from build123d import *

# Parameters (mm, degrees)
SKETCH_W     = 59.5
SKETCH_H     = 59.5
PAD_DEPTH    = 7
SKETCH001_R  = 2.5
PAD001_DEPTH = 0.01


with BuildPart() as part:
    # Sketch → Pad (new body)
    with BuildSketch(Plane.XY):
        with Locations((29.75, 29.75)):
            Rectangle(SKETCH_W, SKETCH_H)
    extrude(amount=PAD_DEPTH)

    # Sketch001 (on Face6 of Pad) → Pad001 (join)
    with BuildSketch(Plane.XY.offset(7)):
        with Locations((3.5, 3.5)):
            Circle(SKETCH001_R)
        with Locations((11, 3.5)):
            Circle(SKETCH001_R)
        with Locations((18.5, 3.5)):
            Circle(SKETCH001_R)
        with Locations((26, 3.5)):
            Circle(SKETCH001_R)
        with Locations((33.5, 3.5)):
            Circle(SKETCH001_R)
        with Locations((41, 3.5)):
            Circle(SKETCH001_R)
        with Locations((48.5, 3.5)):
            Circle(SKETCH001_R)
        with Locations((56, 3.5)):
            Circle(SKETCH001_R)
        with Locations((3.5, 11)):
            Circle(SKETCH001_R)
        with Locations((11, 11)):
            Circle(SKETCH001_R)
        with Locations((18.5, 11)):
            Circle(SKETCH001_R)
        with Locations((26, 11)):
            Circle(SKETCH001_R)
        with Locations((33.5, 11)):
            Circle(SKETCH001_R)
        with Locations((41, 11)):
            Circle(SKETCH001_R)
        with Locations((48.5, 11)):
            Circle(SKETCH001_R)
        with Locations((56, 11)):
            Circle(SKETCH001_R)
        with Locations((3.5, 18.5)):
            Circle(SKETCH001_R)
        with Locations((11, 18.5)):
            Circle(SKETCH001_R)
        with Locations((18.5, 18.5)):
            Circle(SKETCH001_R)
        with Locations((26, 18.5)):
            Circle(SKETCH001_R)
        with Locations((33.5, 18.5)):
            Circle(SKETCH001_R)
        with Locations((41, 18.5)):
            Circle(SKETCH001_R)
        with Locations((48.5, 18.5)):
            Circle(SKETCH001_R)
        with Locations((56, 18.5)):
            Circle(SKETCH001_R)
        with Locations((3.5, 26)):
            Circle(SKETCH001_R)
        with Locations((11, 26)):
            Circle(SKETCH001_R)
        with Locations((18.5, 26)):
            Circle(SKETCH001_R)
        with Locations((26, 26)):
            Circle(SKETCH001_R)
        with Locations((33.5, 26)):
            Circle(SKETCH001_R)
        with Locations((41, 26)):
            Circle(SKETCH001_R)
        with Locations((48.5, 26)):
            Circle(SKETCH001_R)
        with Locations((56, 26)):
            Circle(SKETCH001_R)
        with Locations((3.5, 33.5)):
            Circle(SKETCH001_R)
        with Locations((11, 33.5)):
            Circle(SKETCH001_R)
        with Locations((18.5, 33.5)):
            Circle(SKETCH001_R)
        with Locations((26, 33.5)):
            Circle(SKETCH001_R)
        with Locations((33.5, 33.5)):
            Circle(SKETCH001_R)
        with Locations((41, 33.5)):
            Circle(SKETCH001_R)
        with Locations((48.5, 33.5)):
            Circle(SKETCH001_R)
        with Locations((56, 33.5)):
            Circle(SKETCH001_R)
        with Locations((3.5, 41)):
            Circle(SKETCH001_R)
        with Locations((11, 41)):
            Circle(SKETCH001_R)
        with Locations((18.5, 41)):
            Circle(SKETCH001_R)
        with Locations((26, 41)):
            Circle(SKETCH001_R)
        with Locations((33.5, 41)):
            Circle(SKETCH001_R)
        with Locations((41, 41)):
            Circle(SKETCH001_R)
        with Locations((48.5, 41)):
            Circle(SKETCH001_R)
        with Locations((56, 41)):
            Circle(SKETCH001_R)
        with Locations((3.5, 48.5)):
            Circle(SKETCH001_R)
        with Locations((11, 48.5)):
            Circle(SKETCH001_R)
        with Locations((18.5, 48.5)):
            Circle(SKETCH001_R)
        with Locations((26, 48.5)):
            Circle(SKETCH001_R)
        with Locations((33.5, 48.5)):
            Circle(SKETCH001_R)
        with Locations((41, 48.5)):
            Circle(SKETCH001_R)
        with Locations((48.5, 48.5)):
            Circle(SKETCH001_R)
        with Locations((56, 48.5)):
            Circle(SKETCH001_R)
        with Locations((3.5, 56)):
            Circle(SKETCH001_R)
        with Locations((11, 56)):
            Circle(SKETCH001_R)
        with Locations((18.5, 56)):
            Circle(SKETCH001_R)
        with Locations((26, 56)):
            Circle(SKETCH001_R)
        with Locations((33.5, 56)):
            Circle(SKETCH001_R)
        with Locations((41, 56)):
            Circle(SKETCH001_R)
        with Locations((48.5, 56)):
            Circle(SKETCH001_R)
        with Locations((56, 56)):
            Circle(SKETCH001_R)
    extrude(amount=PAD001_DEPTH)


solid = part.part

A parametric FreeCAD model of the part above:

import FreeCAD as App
import Part
import Sketcher
Q = App.Units.Quantity

doc = App.newDocument("Part")
body = doc.addObject("PartDesign::Body", "Body")

sketch1 = body.newObject("Sketcher::SketchObject", "Sketch")
sketch1.AttachmentSupport = (doc.getObject("XY_Plane"), [""])
sketch1.MapMode = "FlatFace"
sketch1.addGeometry(Part.LineSegment(App.Vector(0, 59.5, 0), App.Vector(0, 0, 0)), False)
sketch1.addGeometry(Part.LineSegment(App.Vector(0, 0, 0), App.Vector(59.5, 0, 0)), False)
sketch1.addGeometry(Part.LineSegment(App.Vector(59.5, 0, 0), App.Vector(59.5, 59.5, 0)), False)
sketch1.addGeometry(Part.LineSegment(App.Vector(59.5, 59.5, 0), App.Vector(0, 59.5, 0)), False)
sketch1.addConstraint(Sketcher.Constraint("Coincident", 0, 2, 1, 1))
sketch1.addConstraint(Sketcher.Constraint("Coincident", 1, 2, 2, 1))
sketch1.addConstraint(Sketcher.Constraint("Coincident", 2, 2, 3, 1))
sketch1.addConstraint(Sketcher.Constraint("Coincident", 3, 2, 0, 1))
sketch1.addConstraint(Sketcher.Constraint("Vertical", 0))
sketch1.addConstraint(Sketcher.Constraint("Horizontal", 1))
sketch1.addConstraint(Sketcher.Constraint("Vertical", 2))
sketch1.addConstraint(Sketcher.Constraint("Horizontal", 3))
sketch1.addConstraint(Sketcher.Constraint("Coincident", 0, 2, -1, 1))
sketch1.addConstraint(Sketcher.Constraint("Equal", 3, 0))
sketch1.addConstraint(Sketcher.Constraint("DistanceX", 1, 1, 1, 2, Q("59.5 mm")))
pad1 = body.newObject("PartDesign::Pad", "Pad")
pad1.Profile = sketch1
pad1.Length = 7

sketch2 = body.newObject("Sketcher::SketchObject", "Sketch001")
sketch2.AttachmentSupport = (doc.getObject("XY_Plane"), [""])
sketch2.MapMode = "FlatFace"
sketch2.AttachmentOffset = App.Placement(App.Vector(0, 0, 7), App.Rotation())
sketch2.addGeometry(Part.Circle(App.Vector(3.5, 3.5, 0), App.Vector(0, 0, 1), 2.5), False)
sketch2.addGeometry(Part.Circle(App.Vector(11, 3.5, 0), App.Vector(0, 0, 1), 2.5), False)
sketch2.addGeometry(Part.Circle(App.Vector(18.5, 3.5, 0), App.Vector(0, 0, 1), 2.5), False)
sketch2.addGeometry(Part.Circle(App.Vector(26, 3.5, 0), App.Vector(0, 0, 1), 2.5), False)
sketch2.addGeometry(Part.Circle(App.Vector(33.5, 3.5, 0), App.Vector(0, 0, 1), 2.5), False)
sketch2.addGeometry(Part.Circle(App.Vector(41, 3.5, 0), App.Vector(0, 0, 1), 2.5), False)
sketch2.addGeometry(Part.Circle(App.Vector(48.5, 3.5, 0), App.Vector(0, 0, 1), 2.5), False)
sketch2.addGeometry(Part.Circle(App.Vector(56, 3.5, 0), App.Vector(0, 0, 1), 2.5), False)
sketch2.addGeometry(Part.Circle(App.Vector(3.5, 11, 0), App.Vector(0, 0, 1), 2.5), False)
sketch2.addGeometry(Part.Circle(App.Vector(11, 11, 0), App.Vector(0, 0, 1), 2.5), False)
sketch2.addGeometry(Part.Circle(App.Vector(18.5, 11, 0), App.Vector(0, 0, 1), 2.5), False)
sketch2.addGeometry(Part.Circle(App.Vector(26, 11, 0), App.Vector(0, 0, 1), 2.5), False)
sketch2.addGeometry(Part.Circle(App.Vector(33.5, 11, 0), App.Vector(0, 0, 1), 2.5), False)
sketch2.addGeometry(Part.Circle(App.Vector(41, 11, 0), App.Vector(0, 0, 1), 2.5), False)
sketch2.addGeometry(Part.Circle(App.Vector(48.5, 11, 0), App.Vector(0, 0, 1), 2.5), False)
sketch2.addGeometry(Part.Circle(App.Vector(56, 11, 0), App.Vector(0, 0, 1), 2.5), False)
sketch2.addGeometry(Part.Circle(App.Vector(3.5, 18.5, 0), App.Vector(0, 0, 1), 2.5), False)
sketch2.addGeometry(Part.Circle(App.Vector(11, 18.5, 0), App.Vector(0, 0, 1), 2.5), False)
sketch2.addGeometry(Part.Circle(App.Vector(18.5, 18.5, 0), App.Vector(0, 0, 1), 2.5), False)
sketch2.addGeometry(Part.Circle(App.Vector(26, 18.5, 0), App.Vector(0, 0, 1), 2.5), False)
sketch2.addGeometry(Part.Circle(App.Vector(33.5, 18.5, 0), App.Vector(0, 0, 1), 2.5), False)
sketch2.addGeometry(Part.Circle(App.Vector(41, 18.5, 0), App.Vector(0, 0, 1), 2.5), False)
sketch2.addGeometry(Part.Circle(App.Vector(48.5, 18.5, 0), App.Vector(0, 0, 1), 2.5), False)
sketch2.addGeometry(Part.Circle(App.Vector(56, 18.5, 0), App.Vector(0, 0, 1), 2.5), False)
sketch2.addGeometry(Part.Circle(App.Vector(3.5, 26, 0), App.Vector(0, 0, 1), 2.5), False)
sketch2.addGeometry(Part.Circle(App.Vector(11, 26, 0), App.Vector(0, 0, 1), 2.5), False)
sketch2.addGeometry(Part.Circle(App.Vector(18.5, 26, 0), App.Vector(0, 0, 1), 2.5), False)
sketch2.addGeometry(Part.Circle(App.Vector(26, 26, 0), App.Vector(0, 0, 1), 2.5), False)
sketch2.addGeometry(Part.Circle(App.Vector(33.5, 26, 0), App.Vector(0, 0, 1), 2.5), False)
sketch2.addGeometry(Part.Circle(App.Vector(41, 26, 0), App.Vector(0, 0, 1), 2.5), False)
sketch2.addGeometry(Part.Circle(App.Vector(48.5, 26, 0), App.Vector(0, 0, 1), 2.5), False)
sketch2.addGeometry(Part.Circle(App.Vector(56, 26, 0), App.Vector(0, 0, 1), 2.5), False)
sketch2.addGeometry(Part.Circle(App.Vector(3.5, 33.5, 0), App.Vector(0, 0, 1), 2.5), False)
sketch2.addGeometry(Part.Circle(App.Vector(11, 33.5, 0), App.Vector(0, 0, 1), 2.5), False)
sketch2.addGeometry(Part.Circle(App.Vector(18.5, 33.5, 0), App.Vector(0, 0, 1), 2.5), False)
sketch2.addGeometry(Part.Circle(App.Vector(26, 33.5, 0), App.Vector(0, 0, 1), 2.5), False)
sketch2.addGeometry(Part.Circle(App.Vector(33.5, 33.5, 0), App.Vector(0, 0, 1), 2.5), False)
sketch2.addGeometry(Part.Circle(App.Vector(41, 33.5, 0), App.Vector(0, 0, 1), 2.5), False)
sketch2.addGeometry(Part.Circle(App.Vector(48.5, 33.5, 0), App.Vector(0, 0, 1), 2.5), False)
sketch2.addGeometry(Part.Circle(App.Vector(56, 33.5, 0), App.Vector(0, 0, 1), 2.5), False)
sketch2.addGeometry(Part.Circle(App.Vector(3.5, 41, 0), App.Vector(0, 0, 1), 2.5), False)
sketch2.addGeometry(Part.Circle(App.Vector(11, 41, 0), App.Vector(0, 0, 1), 2.5), False)
sketch2.addGeometry(Part.Circle(App.Vector(18.5, 41, 0), App.Vector(0, 0, 1), 2.5), False)
sketch2.addGeometry(Part.Circle(App.Vector(26, 41, 0), App.Vector(0, 0, 1), 2.5), False)
sketch2.addGeometry(Part.Circle(App.Vector(33.5, 41, 0), App.Vector(0, 0, 1), 2.5), False)
sketch2.addGeometry(Part.Circle(App.Vector(41, 41, 0), App.Vector(0, 0, 1), 2.5), False)
sketch2.addGeometry(Part.Circle(App.Vector(48.5, 41, 0), App.Vector(0, 0, 1), 2.5), False)
sketch2.addGeometry(Part.Circle(App.Vector(56, 41, 0), App.Vector(0, 0, 1), 2.5), False)
sketch2.addGeometry(Part.Circle(App.Vector(3.5, 48.5, 0), App.Vector(0, 0, 1), 2.5), False)
sketch2.addGeometry(Part.Circle(App.Vector(11, 48.5, 0), App.Vector(0, 0, 1), 2.5), False)
sketch2.addGeometry(Part.Circle(App.Vector(18.5, 48.5, 0), App.Vector(0, 0, 1), 2.5), False)
sketch2.addGeometry(Part.Circle(App.Vector(26, 48.5, 0), App.Vector(0, 0, 1), 2.5), False)
sketch2.addGeometry(Part.Circle(App.Vector(33.5, 48.5, 0), App.Vector(0, 0, 1), 2.5), False)
sketch2.addGeometry(Part.Circle(App.Vector(41, 48.5, 0), App.Vector(0, 0, 1), 2.5), False)
sketch2.addGeometry(Part.Circle(App.Vector(48.5, 48.5, 0), App.Vector(0, 0, 1), 2.5), False)
sketch2.addGeometry(Part.Circle(App.Vector(56, 48.5, 0), App.Vector(0, 0, 1), 2.5), False)
sketch2.addGeometry(Part.Circle(App.Vector(3.5, 56, 0), App.Vector(0, 0, 1), 2.5), False)
sketch2.addGeometry(Part.Circle(App.Vector(11, 56, 0), App.Vector(0, 0, 1), 2.5), False)
sketch2.addGeometry(Part.Circle(App.Vector(18.5, 56, 0), App.Vector(0, 0, 1), 2.5), False)
sketch2.addGeometry(Part.Circle(App.Vector(26, 56, 0), App.Vector(0, 0, 1), 2.5), False)
sketch2.addGeometry(Part.Circle(App.Vector(33.5, 56, 0), App.Vector(0, 0, 1), 2.5), False)
sketch2.addGeometry(Part.Circle(App.Vector(41, 56, 0), App.Vector(0, 0, 1), 2.5), False)
sketch2.addGeometry(Part.Circle(App.Vector(48.5, 56, 0), App.Vector(0, 0, 1), 2.5), False)
sketch2.addGeometry(Part.Circle(App.Vector(56, 56, 0), App.Vector(0, 0, 1), 2.5), False)
sketch2.addConstraint(Sketcher.Constraint("Equal", 0, 1))
sketch2.addConstraint(Sketcher.Constraint("Equal", 1, 2))
sketch2.addConstraint(Sketcher.Constraint("Equal", 2, 3))
sketch2.addConstraint(Sketcher.Constraint("Equal", 3, 4))
sketch2.addConstraint(Sketcher.Constraint("Equal", 4, 5))
sketch2.addConstraint(Sketcher.Constraint("Equal", 5, 6))
sketch2.addConstraint(Sketcher.Constraint("Equal", 6, 7))
sketch2.addConstraint(Sketcher.Constraint("Equal", 7, 8))
sketch2.addConstraint(Sketcher.Constraint("Equal", 8, 9))
sketch2.addConstraint(Sketcher.Constraint("Equal", 9, 10))
sketch2.addConstraint(Sketcher.Constraint("Equal", 10, 11))
sketch2.addConstraint(Sketcher.Constraint("Equal", 11, 12))
sketch2.addConstraint(Sketcher.Constraint("Equal", 12, 13))
sketch2.addConstraint(Sketcher.Constraint("Equal", 13, 14))
sketch2.addConstraint(Sketcher.Constraint("Equal", 14, 15))
sketch2.addConstraint(Sketcher.Constraint("Equal", 15, 16))
sketch2.addConstraint(Sketcher.Constraint("Equal", 16, 17))
sketch2.addConstraint(Sketcher.Constraint("Equal", 17, 18))
sketch2.addConstraint(Sketcher.Constraint("Equal", 18, 19))
sketch2.addConstraint(Sketcher.Constraint("Equal", 19, 20))
sketch2.addConstraint(Sketcher.Constraint("Equal", 20, 21))
sketch2.addConstraint(Sketcher.Constraint("Equal", 21, 22))
sketch2.addConstraint(Sketcher.Constraint("Equal", 22, 23))
sketch2.addConstraint(Sketcher.Constraint("Equal", 23, 24))
sketch2.addConstraint(Sketcher.Constraint("Equal", 24, 25))
sketch2.addConstraint(Sketcher.Constraint("Equal", 25, 26))
sketch2.addConstraint(Sketcher.Constraint("Equal", 26, 27))
sketch2.addConstraint(Sketcher.Constraint("Equal", 27, 28))
sketch2.addConstraint(Sketcher.Constraint("Equal", 28, 29))
sketch2.addConstraint(Sketcher.Constraint("Equal", 29, 30))
sketch2.addConstraint(Sketcher.Constraint("Equal", 30, 31))
sketch2.addConstraint(Sketcher.Constraint("Equal", 31, 32))
sketch2.addConstraint(Sketcher.Constraint("Equal", 32, 33))
sketch2.addConstraint(Sketcher.Constraint("Equal", 33, 34))
sketch2.addConstraint(Sketcher.Constraint("Equal", 34, 35))
sketch2.addConstraint(Sketcher.Constraint("Equal", 35, 36))
sketch2.addConstraint(Sketcher.Constraint("Equal", 36, 37))
sketch2.addConstraint(Sketcher.Constraint("Equal", 37, 38))
sketch2.addConstraint(Sketcher.Constraint("Equal", 38, 39))
sketch2.addConstraint(Sketcher.Constraint("Equal", 39, 40))
sketch2.addConstraint(Sketcher.Constraint("Equal", 40, 41))
sketch2.addConstraint(Sketcher.Constraint("Equal", 41, 42))
sketch2.addConstraint(Sketcher.Constraint("Equal", 42, 43))
sketch2.addConstraint(Sketcher.Constraint("Equal", 43, 44))
sketch2.addConstraint(Sketcher.Constraint("Equal", 44, 45))
sketch2.addConstraint(Sketcher.Constraint("Equal", 45, 46))
sketch2.addConstraint(Sketcher.Constraint("Equal", 46, 47))
sketch2.addConstraint(Sketcher.Constraint("Equal", 47, 48))
sketch2.addConstraint(Sketcher.Constraint("Equal", 48, 49))
sketch2.addConstraint(Sketcher.Constraint("Equal", 49, 50))
sketch2.addConstraint(Sketcher.Constraint("Equal", 50, 51))
sketch2.addConstraint(Sketcher.Constraint("Equal", 51, 52))
sketch2.addConstraint(Sketcher.Constraint("Equal", 52, 53))
sketch2.addConstraint(Sketcher.Constraint("Equal", 53, 54))
sketch2.addConstraint(Sketcher.Constraint("Equal", 54, 55))
sketch2.addConstraint(Sketcher.Constraint("Equal", 55, 56))
sketch2.addConstraint(Sketcher.Constraint("Equal", 56, 57))
sketch2.addConstraint(Sketcher.Constraint("Equal", 57, 58))
sketch2.addConstraint(Sketcher.Constraint("Equal", 58, 59))
sketch2.addConstraint(Sketcher.Constraint("Equal", 59, 60))
sketch2.addConstraint(Sketcher.Constraint("Equal", 60, 61))
sketch2.addConstraint(Sketcher.Constraint("Equal", 61, 62))
sketch2.addConstraint(Sketcher.Constraint("Equal", 62, 63))
sketch2.addConstraint(Sketcher.Constraint("Horizontal", 0, 3, 1, 3))
sketch2.addConstraint(Sketcher.Constraint("Horizontal", 1, 3, 2, 3))
sketch2.addConstraint(Sketcher.Constraint("Horizontal", 2, 3, 3, 3))
sketch2.addConstraint(Sketcher.Constraint("Horizontal", 3, 3, 4, 3))
sketch2.addConstraint(Sketcher.Constraint("Horizontal", 4, 3, 5, 3))
sketch2.addConstraint(Sketcher.Constraint("Horizontal", 5, 3, 6, 3))
sketch2.addConstraint(Sketcher.Constraint("Horizontal", 6, 3, 7, 3))
sketch2.addConstraint(Sketcher.Constraint("Horizontal", 8, 3, 9, 3))
sketch2.addConstraint(Sketcher.Constraint("Horizontal", 9, 3, 10, 3))
sketch2.addConstraint(Sketcher.Constraint("Horizontal", 10, 3, 11, 3))
sketch2.addConstraint(Sketcher.Constraint("Horizontal", 11, 3, 12, 3))
sketch2.addConstraint(Sketcher.Constraint("Horizontal", 12, 3, 13, 3))
sketch2.addConstraint(Sketcher.Constraint("Horizontal", 13, 3, 14, 3))
sketch2.addConstraint(Sketcher.Constraint("Horizontal", 14, 3, 15, 3))
sketch2.addConstraint(Sketcher.Constraint("Horizontal", 16, 3, 17, 3))
sketch2.addConstraint(Sketcher.Constraint("Horizontal", 17, 3, 18, 3))
sketch2.addConstraint(Sketcher.Constraint("Horizontal", 18, 3, 19, 3))
sketch2.addConstraint(Sketcher.Constraint("Horizontal", 19, 3, 20, 3))
sketch2.addConstraint(Sketcher.Constraint("Horizontal", 20, 3, 21, 3))
sketch2.addConstraint(Sketcher.Constraint("Horizontal", 21, 3, 22, 3))
sketch2.addConstraint(Sketcher.Constraint("Horizontal", 22, 3, 23, 3))
sketch2.addConstraint(Sketcher.Constraint("Horizontal", 24, 3, 25, 3))
sketch2.addConstraint(Sketcher.Constraint("Horizontal", 25, 3, 26, 3))
sketch2.addConstraint(Sketcher.Constraint("Horizontal", 26, 3, 27, 3))
sketch2.addConstraint(Sketcher.Constraint("Horizontal", 27, 3, 28, 3))
sketch2.addConstraint(Sketcher.Constraint("Horizontal", 28, 3, 29, 3))
sketch2.addConstraint(Sketcher.Constraint("Horizontal", 29, 3, 30, 3))
sketch2.addConstraint(Sketcher.Constraint("Horizontal", 30, 3, 31, 3))
sketch2.addConstraint(Sketcher.Constraint("Horizontal", 32, 3, 33, 3))
sketch2.addConstraint(Sketcher.Constraint("Horizontal", 33, 3, 34, 3))
sketch2.addConstraint(Sketcher.Constraint("Horizontal", 34, 3, 35, 3))
sketch2.addConstraint(Sketcher.Constraint("Horizontal", 35, 3, 36, 3))
sketch2.addConstraint(Sketcher.Constraint("Horizontal", 36, 3, 37, 3))
sketch2.addConstraint(Sketcher.Constraint("Horizontal", 37, 3, 38, 3))
sketch2.addConstraint(Sketcher.Constraint("Horizontal", 38, 3, 39, 3))
sketch2.addConstraint(Sketcher.Constraint("Horizontal", 40, 3, 41, 3))
sketch2.addConstraint(Sketcher.Constraint("Horizontal", 41, 3, 42, 3))
sketch2.addConstraint(Sketcher.Constraint("Horizontal", 42, 3, 43, 3))
sketch2.addConstraint(Sketcher.Constraint("Horizontal", 43, 3, 44, 3))
sketch2.addConstraint(Sketcher.Constraint("Horizontal", 44, 3, 45, 3))
sketch2.addConstraint(Sketcher.Constraint("Horizontal", 45, 3, 46, 3))
sketch2.addConstraint(Sketcher.Constraint("Horizontal", 46, 3, 47, 3))
sketch2.addConstraint(Sketcher.Constraint("Horizontal", 48, 3, 49, 3))
sketch2.addConstraint(Sketcher.Constraint("Horizontal", 49, 3, 50, 3))
sketch2.addConstraint(Sketcher.Constraint("Horizontal", 50, 3, 51, 3))
sketch2.addConstraint(Sketcher.Constraint("Horizontal", 51, 3, 52, 3))
sketch2.addConstraint(Sketcher.Constraint("Horizontal", 52, 3, 53, 3))
sketch2.addConstraint(Sketcher.Constraint("Horizontal", 53, 3, 54, 3))
sketch2.addConstraint(Sketcher.Constraint("Horizontal", 54, 3, 55, 3))
sketch2.addConstraint(Sketcher.Constraint("Horizontal", 56, 3, 57, 3))
sketch2.addConstraint(Sketcher.Constraint("Horizontal", 57, 3, 58, 3))
sketch2.addConstraint(Sketcher.Constraint("Horizontal", 58, 3, 59, 3))
sketch2.addConstraint(Sketcher.Constraint("Horizontal", 59, 3, 60, 3))
sketch2.addConstraint(Sketcher.Constraint("Horizontal", 60, 3, 61, 3))
sketch2.addConstraint(Sketcher.Constraint("Horizontal", 61, 3, 62, 3))
sketch2.addConstraint(Sketcher.Constraint("Horizontal", 62, 3, 63, 3))
sketch2.addConstraint(Sketcher.Constraint("Vertical", 0, 3, 8, 3))
sketch2.addConstraint(Sketcher.Constraint("Vertical", 1, 3, 9, 3))
sketch2.addConstraint(Sketcher.Constraint("Vertical", 2, 3, 10, 3))
sketch2.addConstraint(Sketcher.Constraint("Vertical", 3, 3, 11, 3))
sketch2.addConstraint(Sketcher.Constraint("Vertical", 4, 3, 12, 3))
sketch2.addConstraint(Sketcher.Constraint("Vertical", 5, 3, 13, 3))
sketch2.addConstraint(Sketcher.Constraint("Vertical", 6, 3, 14, 3))
sketch2.addConstraint(Sketcher.Constraint("Vertical", 7, 3, 15, 3))
sketch2.addConstraint(Sketcher.Constraint("Vertical", 8, 3, 16, 3))
sketch2.addConstraint(Sketcher.Constraint("Vertical", 9, 3, 17, 3))
sketch2.addConstraint(Sketcher.Constraint("Vertical", 10, 3, 18, 3))
sketch2.addConstraint(Sketcher.Constraint("Vertical", 11, 3, 19, 3))
sketch2.addConstraint(Sketcher.Constraint("Vertical", 12, 3, 20, 3))
sketch2.addConstraint(Sketcher.Constraint("Vertical", 13, 3, 21, 3))
sketch2.addConstraint(Sketcher.Constraint("Vertical", 14, 3, 22, 3))
sketch2.addConstraint(Sketcher.Constraint("Vertical", 15, 3, 23, 3))
sketch2.addConstraint(Sketcher.Constraint("Vertical", 16, 3, 24, 3))
sketch2.addConstraint(Sketcher.Constraint("Vertical", 17, 3, 25, 3))
sketch2.addConstraint(Sketcher.Constraint("Vertical", 18, 3, 26, 3))
sketch2.addConstraint(Sketcher.Constraint("Vertical", 19, 3, 27, 3))
sketch2.addConstraint(Sketcher.Constraint("Vertical", 20, 3, 28, 3))
sketch2.addConstraint(Sketcher.Constraint("Vertical", 21, 3, 29, 3))
sketch2.addConstraint(Sketcher.Constraint("Vertical", 22, 3, 30, 3))
sketch2.addConstraint(Sketcher.Constraint("Vertical", 23, 3, 31, 3))
sketch2.addConstraint(Sketcher.Constraint("Vertical", 24, 3, 32, 3))
sketch2.addConstraint(Sketcher.Constraint("Vertical", 25, 3, 33, 3))
sketch2.addConstraint(Sketcher.Constraint("Vertical", 26, 3, 34, 3))
sketch2.addConstraint(Sketcher.Constraint("Vertical", 27, 3, 35, 3))
sketch2.addConstraint(Sketcher.Constraint("Vertical", 28, 3, 36, 3))
sketch2.addConstraint(Sketcher.Constraint("Vertical", 29, 3, 37, 3))
sketch2.addConstraint(Sketcher.Constraint("Vertical", 30, 3, 38, 3))
sketch2.addConstraint(Sketcher.Constraint("Vertical", 31, 3, 39, 3))
sketch2.addConstraint(Sketcher.Constraint("Vertical", 32, 3, 40, 3))
sketch2.addConstraint(Sketcher.Constraint("Vertical", 33, 3, 41, 3))
sketch2.addConstraint(Sketcher.Constraint("Vertical", 34, 3, 42, 3))
sketch2.addConstraint(Sketcher.Constraint("Vertical", 35, 3, 43, 3))
sketch2.addConstraint(Sketcher.Constraint("Vertical", 36, 3, 44, 3))
sketch2.addConstraint(Sketcher.Constraint("Vertical", 37, 3, 45, 3))
sketch2.addConstraint(Sketcher.Constraint("Vertical", 38, 3, 46, 3))
sketch2.addConstraint(Sketcher.Constraint("Vertical", 39, 3, 47, 3))
sketch2.addConstraint(Sketcher.Constraint("Vertical", 40, 3, 48, 3))
sketch2.addConstraint(Sketcher.Constraint("Vertical", 41, 3, 49, 3))
sketch2.addConstraint(Sketcher.Constraint("Vertical", 42, 3, 50, 3))
sketch2.addConstraint(Sketcher.Constraint("Vertical", 43, 3, 51, 3))
sketch2.addConstraint(Sketcher.Constraint("Vertical", 44, 3, 52, 3))
sketch2.addConstraint(Sketcher.Constraint("Vertical", 45, 3, 53, 3))
sketch2.addConstraint(Sketcher.Constraint("Vertical", 46, 3, 54, 3))
sketch2.addConstraint(Sketcher.Constraint("Vertical", 47, 3, 55, 3))
sketch2.addConstraint(Sketcher.Constraint("Vertical", 48, 3, 56, 3))
sketch2.addConstraint(Sketcher.Constraint("Vertical", 49, 3, 57, 3))
sketch2.addConstraint(Sketcher.Constraint("Vertical", 50, 3, 58, 3))
sketch2.addConstraint(Sketcher.Constraint("Vertical", 51, 3, 59, 3))
sketch2.addConstraint(Sketcher.Constraint("Vertical", 52, 3, 60, 3))
sketch2.addConstraint(Sketcher.Constraint("Vertical", 53, 3, 61, 3))
sketch2.addConstraint(Sketcher.Constraint("Vertical", 54, 3, 62, 3))
sketch2.addConstraint(Sketcher.Constraint("Vertical", 55, 3, 63, 3))
sketch2.addConstraint(Sketcher.Constraint("Diameter", 0, Q("5 mm")))
sketch2.addConstraint(Sketcher.Constraint("DistanceX", -1, 1, 1, 3, Q("11 mm")))
sketch2.addConstraint(Sketcher.Constraint("DistanceX", -1, 1, 3, 3, Q("26 mm")))
sketch2.addConstraint(Sketcher.Constraint("DistanceX", -1, 1, 5, 3, Q("41 mm")))
sketch2.addConstraint(Sketcher.Constraint("DistanceX", -1, 1, 7, 3, Q("56 mm")))
sketch2.addConstraint(Sketcher.Constraint("DistanceY", -1, 1, 8, 3, Q("11 mm")))
sketch2.addConstraint(Sketcher.Constraint("DistanceY", -1, 1, 24, 3, Q("26 mm")))
sketch2.addConstraint(Sketcher.Constraint("DistanceY", -1, 1, 40, 3, Q("41 mm")))
sketch2.addConstraint(Sketcher.Constraint("DistanceY", -1, 1, 56, 3, Q("56 mm")))
sketch2.addConstraint(Sketcher.Constraint("DistanceX", -1, 1, 0, 3, Q("3.5 mm")))
sketch2.addConstraint(Sketcher.Constraint("DistanceY", -1, 1, 0, 3, Q("3.5 mm")))
sketch2.addConstraint(Sketcher.Constraint("DistanceX", -1, 1, 2, 3, Q("18.5 mm")))
sketch2.addConstraint(Sketcher.Constraint("DistanceX", -1, 1, 4, 3, Q("33.5 mm")))
sketch2.addConstraint(Sketcher.Constraint("DistanceX", -1, 1, 6, 3, Q("48.5 mm")))
sketch2.addConstraint(Sketcher.Constraint("DistanceY", -1, 1, 16, 3, Q("18.5 mm")))
sketch2.addConstraint(Sketcher.Constraint("DistanceY", -1, 1, 32, 3, Q("33.5 mm")))
sketch2.addConstraint(Sketcher.Constraint("DistanceY", -1, 1, 48, 3, Q("48.5 mm")))
pad2 = body.newObject("PartDesign::Pad", "Pad001")
pad2.Profile = sketch2
pad2.Length = 0.01

doc.recompute()
